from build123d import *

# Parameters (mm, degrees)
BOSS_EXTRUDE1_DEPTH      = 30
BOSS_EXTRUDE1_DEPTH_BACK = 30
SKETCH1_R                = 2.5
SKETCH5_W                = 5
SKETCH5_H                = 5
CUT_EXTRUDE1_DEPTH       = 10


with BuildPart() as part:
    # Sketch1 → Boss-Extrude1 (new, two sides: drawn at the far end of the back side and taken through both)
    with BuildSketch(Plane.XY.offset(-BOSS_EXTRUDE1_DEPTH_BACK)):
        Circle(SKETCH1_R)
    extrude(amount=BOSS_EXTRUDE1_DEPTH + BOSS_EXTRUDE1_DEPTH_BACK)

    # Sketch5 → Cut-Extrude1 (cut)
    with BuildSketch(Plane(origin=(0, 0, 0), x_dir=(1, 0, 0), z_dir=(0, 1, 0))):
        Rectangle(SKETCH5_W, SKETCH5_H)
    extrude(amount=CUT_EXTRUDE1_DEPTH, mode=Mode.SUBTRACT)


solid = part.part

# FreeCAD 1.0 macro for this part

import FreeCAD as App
import Part
import Sketcher

V = App.Vector


def add_polygon(sketch, points):
    """Adds a closed chain of lines whose ends are joined by coincident constraints."""
    first, n = sketch.GeometryCount, len(points)
    for a, b in zip(points, points[1:] + points[:1]):
        sketch.addGeometry(Part.LineSegment(App.Vector(*a, 0), App.Vector(*b, 0)), False)
    for i in range(n):
        sketch.addConstraint(Sketcher.Constraint("Coincident", first + i, 2, first + (i + 1) % n, 1))

doc = App.newDocument("Part")
params = doc.addObject("Spreadsheet::Sheet", "Params")
for row, (alias, value) in enumerate([
    ("sketch1_diameter", "5 mm"),
    ("pad1_length", "30 mm"),
    ("pad1_length2", "30 mm"),
    ("sketch2_width", "5 mm"),
    ("pocket1_length", "10 mm"),
], start=1):
    params.set(f"A{row}", alias)
    params.set(f"B{row}", "=" + value)
    params.setAlias(f"B{row}", alias)

body = doc.addObject("PartDesign::Body", "Body")

sketch1 = doc.addObject("Sketcher::SketchObject", "Sketch")
body.addObject(sketch1)
sketch1.AttachmentSupport = (doc.XY_Plane, [""])
sketch1.MapMode = "FlatFace"
sketch1.addGeometry(Part.Circle(V(0, 0, 0), V(0, 0, 1), 2.5), False)
sketch1.addConstraint([
    Sketcher.Constraint("Coincident", 0, 3, -1, 1),
    Sketcher.Constraint("Diameter", 0, 5.0),
])
sketch1.setExpression("Constraints[1]", "Params.sketch1_diameter")
pad1 = doc.addObject("PartDesign::Pad", "Pad")
body.addObject(pad1)
pad1.Profile = sketch1
pad1.Type = "TwoLengths"
pad1.setExpression("Length", "Params.pad1_length")
pad1.setExpression("Length2", "Params.pad1_length2")

sketch2 = doc.addObject("Sketcher::SketchObject", "Sketch001")
body.addObject(sketch2)
sketch2.AttachmentSupport = (doc.XZ_Plane, [""])
sketch2.MapMode = "FlatFace"
add_polygon(sketch2, [(-2, -2), (-2, 2), (2, 2), (2, -2)])
sketch2.addConstraint([
    Sketcher.Constraint("Vertical", 0),
    Sketcher.Constraint("Horizontal", 1),
    Sketcher.Constraint("Vertical", 2),
    Sketcher.Constraint("Horizontal", 3),
    Sketcher.Constraint("Symmetric", 0, 2, 2, 2, -1, 1),
    Sketcher.Constraint("Equal", 3, 0),
    Sketcher.Constraint("DistanceX", 1, 1, 1, 2, 5.0),
])
sketch2.setExpression("Constraints[10]", "Params.sketch2_width")
pocket1 = doc.addObject("PartDesign::Pocket", "Pocket")
body.addObject(pocket1)
pocket1.Profile = sketch2
pocket1.setExpression("Length", "Params.pocket1_length")

doc.recompute()
